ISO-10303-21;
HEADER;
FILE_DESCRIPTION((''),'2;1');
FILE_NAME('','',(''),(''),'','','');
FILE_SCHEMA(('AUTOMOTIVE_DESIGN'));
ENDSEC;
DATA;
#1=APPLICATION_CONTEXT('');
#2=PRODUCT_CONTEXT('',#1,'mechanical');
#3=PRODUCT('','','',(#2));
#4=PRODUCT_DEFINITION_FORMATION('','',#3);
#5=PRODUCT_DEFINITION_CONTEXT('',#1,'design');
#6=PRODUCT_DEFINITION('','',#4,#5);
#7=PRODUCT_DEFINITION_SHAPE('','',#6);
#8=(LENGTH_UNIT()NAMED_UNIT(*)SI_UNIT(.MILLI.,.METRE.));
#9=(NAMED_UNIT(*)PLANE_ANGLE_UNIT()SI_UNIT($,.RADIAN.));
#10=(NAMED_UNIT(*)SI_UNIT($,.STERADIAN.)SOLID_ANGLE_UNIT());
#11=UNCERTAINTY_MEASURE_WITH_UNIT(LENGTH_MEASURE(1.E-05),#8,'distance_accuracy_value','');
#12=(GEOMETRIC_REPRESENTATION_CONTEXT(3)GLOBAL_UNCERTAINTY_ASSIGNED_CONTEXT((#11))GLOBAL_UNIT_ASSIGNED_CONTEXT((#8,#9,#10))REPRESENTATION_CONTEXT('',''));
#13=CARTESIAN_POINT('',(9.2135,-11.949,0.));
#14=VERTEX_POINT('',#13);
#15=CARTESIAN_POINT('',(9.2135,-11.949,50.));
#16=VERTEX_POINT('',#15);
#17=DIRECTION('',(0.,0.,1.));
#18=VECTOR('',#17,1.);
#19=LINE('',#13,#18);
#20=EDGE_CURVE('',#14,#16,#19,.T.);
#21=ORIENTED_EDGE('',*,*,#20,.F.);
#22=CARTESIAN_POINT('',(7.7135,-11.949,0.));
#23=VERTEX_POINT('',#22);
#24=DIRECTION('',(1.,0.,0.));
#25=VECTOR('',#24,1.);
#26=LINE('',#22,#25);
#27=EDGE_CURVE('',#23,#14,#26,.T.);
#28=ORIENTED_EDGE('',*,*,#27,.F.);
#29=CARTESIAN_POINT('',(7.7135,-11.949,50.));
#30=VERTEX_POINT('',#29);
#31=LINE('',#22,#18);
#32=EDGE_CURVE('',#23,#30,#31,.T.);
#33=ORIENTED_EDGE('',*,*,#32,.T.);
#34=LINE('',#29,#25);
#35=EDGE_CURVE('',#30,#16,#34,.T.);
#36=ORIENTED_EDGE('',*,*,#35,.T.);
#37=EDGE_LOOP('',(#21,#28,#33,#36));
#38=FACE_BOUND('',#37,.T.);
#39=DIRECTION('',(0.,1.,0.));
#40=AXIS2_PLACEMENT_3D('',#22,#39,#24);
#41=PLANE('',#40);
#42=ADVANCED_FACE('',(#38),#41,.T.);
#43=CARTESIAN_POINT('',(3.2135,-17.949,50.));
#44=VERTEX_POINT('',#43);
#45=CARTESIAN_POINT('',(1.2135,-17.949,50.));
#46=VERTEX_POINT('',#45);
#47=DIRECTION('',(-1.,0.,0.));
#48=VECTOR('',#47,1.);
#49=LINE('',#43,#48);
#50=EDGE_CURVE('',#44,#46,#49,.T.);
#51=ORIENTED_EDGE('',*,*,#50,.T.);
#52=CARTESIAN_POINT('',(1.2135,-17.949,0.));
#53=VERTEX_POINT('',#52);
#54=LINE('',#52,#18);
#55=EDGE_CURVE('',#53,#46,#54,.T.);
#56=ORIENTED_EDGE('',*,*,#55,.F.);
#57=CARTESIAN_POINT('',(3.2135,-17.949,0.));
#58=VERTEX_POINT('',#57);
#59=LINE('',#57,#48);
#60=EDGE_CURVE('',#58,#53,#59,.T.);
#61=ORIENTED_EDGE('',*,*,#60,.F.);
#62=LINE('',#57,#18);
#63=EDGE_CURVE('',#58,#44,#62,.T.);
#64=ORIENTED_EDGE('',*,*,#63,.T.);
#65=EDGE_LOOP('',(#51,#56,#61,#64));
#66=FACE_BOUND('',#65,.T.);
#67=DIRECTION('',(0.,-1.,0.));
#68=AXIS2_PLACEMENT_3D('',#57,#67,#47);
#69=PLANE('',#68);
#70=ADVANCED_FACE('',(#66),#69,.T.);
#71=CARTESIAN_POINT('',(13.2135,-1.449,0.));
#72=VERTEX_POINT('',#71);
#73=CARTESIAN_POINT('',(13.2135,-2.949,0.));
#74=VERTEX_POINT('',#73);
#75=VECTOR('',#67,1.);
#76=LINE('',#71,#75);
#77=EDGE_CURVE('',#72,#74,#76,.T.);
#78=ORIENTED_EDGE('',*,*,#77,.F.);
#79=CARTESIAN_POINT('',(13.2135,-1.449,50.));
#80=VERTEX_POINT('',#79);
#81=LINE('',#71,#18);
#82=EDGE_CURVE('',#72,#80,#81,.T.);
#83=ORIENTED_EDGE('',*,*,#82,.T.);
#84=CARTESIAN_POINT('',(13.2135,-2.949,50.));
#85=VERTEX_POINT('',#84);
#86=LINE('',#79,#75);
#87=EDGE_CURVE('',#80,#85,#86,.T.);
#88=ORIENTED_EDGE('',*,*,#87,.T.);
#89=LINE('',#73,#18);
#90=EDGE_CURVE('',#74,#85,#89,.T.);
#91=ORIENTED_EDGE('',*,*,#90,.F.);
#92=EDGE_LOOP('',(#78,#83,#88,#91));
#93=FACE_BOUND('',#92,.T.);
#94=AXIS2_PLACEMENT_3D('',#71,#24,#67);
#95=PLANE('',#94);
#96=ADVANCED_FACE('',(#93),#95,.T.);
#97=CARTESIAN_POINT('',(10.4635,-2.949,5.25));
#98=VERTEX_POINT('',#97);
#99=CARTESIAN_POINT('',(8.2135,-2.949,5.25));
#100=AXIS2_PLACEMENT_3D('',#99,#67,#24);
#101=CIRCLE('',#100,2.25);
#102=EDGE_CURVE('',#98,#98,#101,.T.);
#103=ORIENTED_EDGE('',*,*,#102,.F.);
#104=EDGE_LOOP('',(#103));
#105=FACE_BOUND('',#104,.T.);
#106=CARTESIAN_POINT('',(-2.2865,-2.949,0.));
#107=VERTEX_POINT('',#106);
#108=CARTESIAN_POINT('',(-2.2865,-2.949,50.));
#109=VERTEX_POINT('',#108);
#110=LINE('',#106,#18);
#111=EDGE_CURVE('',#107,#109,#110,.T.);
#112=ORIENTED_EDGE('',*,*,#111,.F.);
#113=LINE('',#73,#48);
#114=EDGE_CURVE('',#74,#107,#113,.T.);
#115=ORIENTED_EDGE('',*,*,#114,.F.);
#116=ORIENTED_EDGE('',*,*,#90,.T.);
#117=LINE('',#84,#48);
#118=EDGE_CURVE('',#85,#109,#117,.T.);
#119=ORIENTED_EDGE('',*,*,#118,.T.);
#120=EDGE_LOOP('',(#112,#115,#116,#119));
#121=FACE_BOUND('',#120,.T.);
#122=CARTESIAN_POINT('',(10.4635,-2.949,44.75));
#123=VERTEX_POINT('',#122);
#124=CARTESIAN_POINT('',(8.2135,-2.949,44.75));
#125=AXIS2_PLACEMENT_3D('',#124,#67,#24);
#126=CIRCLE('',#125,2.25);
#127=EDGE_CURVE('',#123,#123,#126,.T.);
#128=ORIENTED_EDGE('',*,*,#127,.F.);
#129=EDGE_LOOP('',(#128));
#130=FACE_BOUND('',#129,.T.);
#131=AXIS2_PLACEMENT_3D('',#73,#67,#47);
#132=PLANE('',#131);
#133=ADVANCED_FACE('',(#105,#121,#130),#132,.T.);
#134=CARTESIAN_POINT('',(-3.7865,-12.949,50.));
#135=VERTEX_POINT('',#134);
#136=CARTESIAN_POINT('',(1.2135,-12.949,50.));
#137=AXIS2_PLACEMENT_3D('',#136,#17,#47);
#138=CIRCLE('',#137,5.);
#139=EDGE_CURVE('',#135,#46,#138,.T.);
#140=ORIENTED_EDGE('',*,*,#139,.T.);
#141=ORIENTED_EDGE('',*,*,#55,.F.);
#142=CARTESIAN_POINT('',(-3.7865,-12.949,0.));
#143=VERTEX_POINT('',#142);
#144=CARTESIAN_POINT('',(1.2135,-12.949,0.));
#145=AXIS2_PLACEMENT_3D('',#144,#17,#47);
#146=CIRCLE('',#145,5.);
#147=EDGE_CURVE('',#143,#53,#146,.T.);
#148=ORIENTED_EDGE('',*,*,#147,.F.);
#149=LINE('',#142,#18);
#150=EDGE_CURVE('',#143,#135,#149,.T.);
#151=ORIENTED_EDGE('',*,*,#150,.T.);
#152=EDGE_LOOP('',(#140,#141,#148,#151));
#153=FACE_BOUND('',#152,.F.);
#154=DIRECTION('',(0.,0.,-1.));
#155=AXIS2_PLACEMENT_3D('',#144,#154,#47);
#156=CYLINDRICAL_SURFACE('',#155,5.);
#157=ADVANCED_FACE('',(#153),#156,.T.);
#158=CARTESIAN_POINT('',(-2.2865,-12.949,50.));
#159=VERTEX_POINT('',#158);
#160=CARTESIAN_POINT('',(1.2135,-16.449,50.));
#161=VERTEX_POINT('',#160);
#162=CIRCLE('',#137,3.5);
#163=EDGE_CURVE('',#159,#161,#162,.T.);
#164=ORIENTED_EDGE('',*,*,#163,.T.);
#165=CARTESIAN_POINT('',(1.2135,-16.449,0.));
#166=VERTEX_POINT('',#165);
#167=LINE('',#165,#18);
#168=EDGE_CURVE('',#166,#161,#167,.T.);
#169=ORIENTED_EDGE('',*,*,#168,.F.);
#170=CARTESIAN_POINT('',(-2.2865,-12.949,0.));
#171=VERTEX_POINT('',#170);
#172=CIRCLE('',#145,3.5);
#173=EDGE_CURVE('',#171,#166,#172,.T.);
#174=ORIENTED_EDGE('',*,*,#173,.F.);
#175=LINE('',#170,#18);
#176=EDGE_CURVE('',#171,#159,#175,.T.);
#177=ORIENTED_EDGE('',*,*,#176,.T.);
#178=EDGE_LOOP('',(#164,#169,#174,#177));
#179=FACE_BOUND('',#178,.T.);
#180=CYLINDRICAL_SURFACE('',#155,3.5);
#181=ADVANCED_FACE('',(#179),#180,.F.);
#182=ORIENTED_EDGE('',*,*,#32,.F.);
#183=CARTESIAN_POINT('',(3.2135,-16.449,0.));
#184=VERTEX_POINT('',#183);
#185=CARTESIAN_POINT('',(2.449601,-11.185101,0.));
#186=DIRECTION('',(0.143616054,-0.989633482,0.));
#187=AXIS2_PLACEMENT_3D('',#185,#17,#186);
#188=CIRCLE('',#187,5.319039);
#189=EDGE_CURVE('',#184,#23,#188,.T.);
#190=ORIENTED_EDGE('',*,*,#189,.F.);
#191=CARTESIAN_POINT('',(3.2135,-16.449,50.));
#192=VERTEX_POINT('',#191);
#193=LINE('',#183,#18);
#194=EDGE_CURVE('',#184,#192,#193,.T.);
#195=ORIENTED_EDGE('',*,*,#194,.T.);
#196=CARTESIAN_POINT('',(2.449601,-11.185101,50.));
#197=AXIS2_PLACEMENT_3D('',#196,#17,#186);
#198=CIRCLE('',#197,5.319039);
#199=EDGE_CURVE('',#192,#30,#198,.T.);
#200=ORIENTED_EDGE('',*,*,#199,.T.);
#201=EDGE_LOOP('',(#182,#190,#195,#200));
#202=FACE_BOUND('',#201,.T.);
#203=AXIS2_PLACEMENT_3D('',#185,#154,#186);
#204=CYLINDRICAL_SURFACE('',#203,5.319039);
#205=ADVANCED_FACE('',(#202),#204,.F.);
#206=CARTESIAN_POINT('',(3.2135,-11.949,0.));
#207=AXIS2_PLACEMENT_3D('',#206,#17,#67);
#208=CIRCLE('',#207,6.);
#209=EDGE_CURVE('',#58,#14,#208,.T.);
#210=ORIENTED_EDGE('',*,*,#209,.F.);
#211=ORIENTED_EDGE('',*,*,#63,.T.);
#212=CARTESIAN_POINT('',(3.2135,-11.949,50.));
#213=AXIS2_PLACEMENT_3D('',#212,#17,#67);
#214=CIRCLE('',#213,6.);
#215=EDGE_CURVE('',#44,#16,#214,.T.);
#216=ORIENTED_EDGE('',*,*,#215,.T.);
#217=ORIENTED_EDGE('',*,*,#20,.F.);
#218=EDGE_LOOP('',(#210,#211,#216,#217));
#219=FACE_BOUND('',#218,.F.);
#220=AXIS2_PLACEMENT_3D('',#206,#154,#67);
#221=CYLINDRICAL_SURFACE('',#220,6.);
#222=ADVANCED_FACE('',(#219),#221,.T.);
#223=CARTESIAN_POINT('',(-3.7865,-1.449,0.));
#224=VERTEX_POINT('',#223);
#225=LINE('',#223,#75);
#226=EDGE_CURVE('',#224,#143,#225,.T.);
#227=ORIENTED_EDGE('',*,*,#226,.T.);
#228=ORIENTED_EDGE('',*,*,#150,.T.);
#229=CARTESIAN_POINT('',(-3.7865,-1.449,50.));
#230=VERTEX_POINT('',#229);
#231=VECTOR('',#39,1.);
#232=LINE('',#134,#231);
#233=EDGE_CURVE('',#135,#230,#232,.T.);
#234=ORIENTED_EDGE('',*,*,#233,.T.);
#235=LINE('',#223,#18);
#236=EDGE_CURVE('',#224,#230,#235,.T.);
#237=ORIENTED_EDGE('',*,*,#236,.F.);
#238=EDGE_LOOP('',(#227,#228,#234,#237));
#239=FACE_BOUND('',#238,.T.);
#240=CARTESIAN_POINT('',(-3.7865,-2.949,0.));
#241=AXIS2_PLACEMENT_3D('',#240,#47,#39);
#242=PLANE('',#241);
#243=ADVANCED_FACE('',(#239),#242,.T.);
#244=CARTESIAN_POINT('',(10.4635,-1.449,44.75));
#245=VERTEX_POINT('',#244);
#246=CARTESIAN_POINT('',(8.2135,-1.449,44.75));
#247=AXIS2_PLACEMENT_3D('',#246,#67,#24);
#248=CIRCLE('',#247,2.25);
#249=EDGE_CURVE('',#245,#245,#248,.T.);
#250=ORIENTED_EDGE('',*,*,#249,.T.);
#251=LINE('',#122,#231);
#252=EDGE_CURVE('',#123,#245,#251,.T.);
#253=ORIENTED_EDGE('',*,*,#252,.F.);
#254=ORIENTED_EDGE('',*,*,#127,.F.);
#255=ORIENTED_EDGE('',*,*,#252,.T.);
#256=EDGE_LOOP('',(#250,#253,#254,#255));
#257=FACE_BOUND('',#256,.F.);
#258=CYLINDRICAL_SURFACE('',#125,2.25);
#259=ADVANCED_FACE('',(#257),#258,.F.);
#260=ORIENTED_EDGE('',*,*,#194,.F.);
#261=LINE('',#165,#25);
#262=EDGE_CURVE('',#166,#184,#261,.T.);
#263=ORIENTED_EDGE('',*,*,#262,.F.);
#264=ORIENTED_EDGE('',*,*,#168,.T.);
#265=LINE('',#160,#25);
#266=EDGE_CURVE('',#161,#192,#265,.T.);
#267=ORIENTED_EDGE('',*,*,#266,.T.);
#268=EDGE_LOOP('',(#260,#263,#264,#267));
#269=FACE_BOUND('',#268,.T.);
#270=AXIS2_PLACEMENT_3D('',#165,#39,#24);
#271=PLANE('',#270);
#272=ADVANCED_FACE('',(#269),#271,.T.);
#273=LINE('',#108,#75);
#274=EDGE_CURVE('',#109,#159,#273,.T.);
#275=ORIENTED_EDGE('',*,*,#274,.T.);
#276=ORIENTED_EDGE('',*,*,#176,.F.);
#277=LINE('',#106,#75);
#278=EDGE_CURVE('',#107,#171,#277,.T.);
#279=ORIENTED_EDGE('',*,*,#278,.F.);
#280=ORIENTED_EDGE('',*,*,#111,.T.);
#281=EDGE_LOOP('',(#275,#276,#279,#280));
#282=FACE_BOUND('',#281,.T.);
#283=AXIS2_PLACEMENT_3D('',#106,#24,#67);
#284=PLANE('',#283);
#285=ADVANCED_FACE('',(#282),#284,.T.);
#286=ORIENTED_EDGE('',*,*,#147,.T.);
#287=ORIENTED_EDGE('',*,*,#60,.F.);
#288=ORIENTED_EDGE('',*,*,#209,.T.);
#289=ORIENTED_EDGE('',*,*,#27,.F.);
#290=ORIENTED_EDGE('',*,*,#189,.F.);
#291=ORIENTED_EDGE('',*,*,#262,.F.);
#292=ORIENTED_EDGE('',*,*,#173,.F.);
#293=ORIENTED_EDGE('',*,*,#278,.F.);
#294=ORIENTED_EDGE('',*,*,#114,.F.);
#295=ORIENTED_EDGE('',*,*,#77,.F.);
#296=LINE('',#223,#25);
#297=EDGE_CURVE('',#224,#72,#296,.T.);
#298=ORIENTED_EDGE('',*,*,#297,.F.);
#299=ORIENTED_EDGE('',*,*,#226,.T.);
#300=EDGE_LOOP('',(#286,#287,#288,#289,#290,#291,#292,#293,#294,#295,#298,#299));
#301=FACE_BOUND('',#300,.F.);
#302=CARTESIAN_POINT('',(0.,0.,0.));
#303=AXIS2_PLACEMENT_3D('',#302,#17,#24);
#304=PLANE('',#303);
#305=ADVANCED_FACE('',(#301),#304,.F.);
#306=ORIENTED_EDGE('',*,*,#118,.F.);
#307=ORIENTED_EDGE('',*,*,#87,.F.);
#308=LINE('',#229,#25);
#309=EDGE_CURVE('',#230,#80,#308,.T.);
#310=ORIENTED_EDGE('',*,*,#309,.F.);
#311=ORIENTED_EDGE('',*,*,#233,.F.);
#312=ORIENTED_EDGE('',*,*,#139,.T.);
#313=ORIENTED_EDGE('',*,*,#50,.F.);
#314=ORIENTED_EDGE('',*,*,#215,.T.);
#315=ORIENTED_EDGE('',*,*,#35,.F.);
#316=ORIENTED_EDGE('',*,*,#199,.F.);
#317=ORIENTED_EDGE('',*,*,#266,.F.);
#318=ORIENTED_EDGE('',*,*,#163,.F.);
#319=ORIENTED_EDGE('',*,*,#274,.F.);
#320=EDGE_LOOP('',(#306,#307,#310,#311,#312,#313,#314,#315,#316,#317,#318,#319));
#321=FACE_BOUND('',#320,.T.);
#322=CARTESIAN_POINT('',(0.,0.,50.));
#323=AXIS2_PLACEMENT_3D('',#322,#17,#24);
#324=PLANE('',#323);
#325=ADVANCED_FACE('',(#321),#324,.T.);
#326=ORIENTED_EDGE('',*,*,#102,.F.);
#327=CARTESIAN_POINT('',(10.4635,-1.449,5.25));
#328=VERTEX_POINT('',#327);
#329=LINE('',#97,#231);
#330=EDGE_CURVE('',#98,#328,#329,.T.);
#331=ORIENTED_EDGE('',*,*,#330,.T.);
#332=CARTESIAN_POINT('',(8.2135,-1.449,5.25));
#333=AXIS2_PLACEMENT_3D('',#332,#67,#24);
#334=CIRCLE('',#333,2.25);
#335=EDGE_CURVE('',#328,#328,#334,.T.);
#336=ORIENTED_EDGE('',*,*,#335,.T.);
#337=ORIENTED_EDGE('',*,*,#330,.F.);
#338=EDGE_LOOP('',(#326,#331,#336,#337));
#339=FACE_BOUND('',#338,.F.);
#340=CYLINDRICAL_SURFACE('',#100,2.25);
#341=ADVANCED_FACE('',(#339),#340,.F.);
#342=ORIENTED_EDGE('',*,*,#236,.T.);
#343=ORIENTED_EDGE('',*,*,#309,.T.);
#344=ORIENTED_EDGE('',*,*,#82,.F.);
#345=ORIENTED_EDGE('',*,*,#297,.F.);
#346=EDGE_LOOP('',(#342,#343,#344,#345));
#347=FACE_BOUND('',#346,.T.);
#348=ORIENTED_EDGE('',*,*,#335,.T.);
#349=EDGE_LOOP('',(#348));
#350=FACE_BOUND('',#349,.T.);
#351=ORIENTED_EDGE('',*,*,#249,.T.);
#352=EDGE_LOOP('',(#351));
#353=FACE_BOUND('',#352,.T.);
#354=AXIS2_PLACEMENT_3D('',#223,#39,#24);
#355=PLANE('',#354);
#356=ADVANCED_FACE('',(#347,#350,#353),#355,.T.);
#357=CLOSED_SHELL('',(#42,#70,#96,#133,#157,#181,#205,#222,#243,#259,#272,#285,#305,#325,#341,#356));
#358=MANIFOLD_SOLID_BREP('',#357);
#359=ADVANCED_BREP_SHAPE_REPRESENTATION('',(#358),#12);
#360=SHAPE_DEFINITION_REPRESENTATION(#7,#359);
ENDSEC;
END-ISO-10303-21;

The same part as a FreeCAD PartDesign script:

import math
import FreeCAD as App
import Part
import Sketcher

V = App.Vector

doc = App.newDocument("Part")
params = doc.addObject("Spreadsheet::Sheet", "Params")
for row, (alias, value) in enumerate([
    ("sketch1_radius", "5 mm"),
    ("sketch1_radius2", "6 mm"),
    ("sketch1_width", "2 mm"),
    ("sketch1_height", "10 mm"),
    ("sketch1_width2", "1.5 mm"),
    ("pad1_length", "50 mm"),
    ("sketch2_diameter", "4.5 mm"),
    ("pocket1_length", "3 mm"),
], start=1):
    params.set(f"A{row}", alias)
    params.set(f"B{row}", "=" + value)
    params.setAlias(f"B{row}", alias)

body = doc.addObject("PartDesign::Body", "Body")

# Sketch on XY plane
sketch1 = body.newObject("Sketcher::SketchObject", "Sketch")
sketch1.AttachmentSupport = (doc.getObject("XY_Plane"), [""])
sketch1.MapMode = "FlatFace"
sketch1.addGeometry([
    Part.LineSegment(V(13.2135, -1.449, 0), V(-3.7865, -1.449, 0)),  # 0
    Part.LineSegment(V(-3.7865, -1.449, 0), V(-3.7865, -12.949, 0)),  # 1
    Part.ArcOfCircle(Part.Circle(V(1.2135, -12.949, 0), V(0, 0, 1), 5), math.radians(180), math.radians(270)),  # 2
    Part.LineSegment(V(1.2135, -17.949, 0), V(3.2135, -17.949, 0)),  # 3
    Part.ArcOfCircle(Part.Circle(V(3.2135, -11.949, 0), V(0, 0, 1), 6), math.radians(-90), math.radians(0)),  # 4
    Part.LineSegment(V(9.2135, -11.949, 0), V(7.7135, -11.949, 0)),  # 5
    Part.ArcOfCircle(Part.Circle(V(2.4495, -11.1849, 0), V(0, 0, 1), 5.319252), math.radians(-81.742092), math.radians(-8.259129)),  # 6
    Part.LineSegment(V(3.2135, -16.449, 0), V(1.2135, -16.449, 0)),  # 7
    Part.ArcOfCircle(Part.Circle(V(1.2135, -12.949, 0), V(0, 0, 1), 3.5), math.radians(180), math.radians(270)),  # 8
    Part.LineSegment(V(-2.2865, -12.949, 0), V(-2.2865, -2.949, 0)),  # 9
    Part.LineSegment(V(-2.2865, -2.949, 0), V(13.2135, -2.949, 0)),  # 10
    Part.LineSegment(V(13.2135, -2.949, 0), V(13.2135, -1.449, 0)),  # 11
], False)
sketch1.addConstraint([
    Sketcher.Constraint("Coincident", 0, 2, 1, 1),
    Sketcher.Constraint("Tangent", 1, 2, 2, 1),
    Sketcher.Constraint("Tangent", 2, 2, 3, 1),
    Sketcher.Constraint("Tangent", 3, 2, 4, 1),
    Sketcher.Constraint("Coincident", 4, 2, 5, 1),
    Sketcher.Constraint("Coincident", 5, 2, 6, 2),
    Sketcher.Constraint("Coincident", 6, 1, 7, 1),
    Sketcher.Constraint("Tangent", 7, 2, 8, 2),
    Sketcher.Constraint("Tangent", 8, 1, 9, 1),
    Sketcher.Constraint("Coincident", 9, 2, 10, 1),
    Sketcher.Constraint("Coincident", 10, 2, 11, 1),
    Sketcher.Constraint("Coincident", 11, 2, 0, 1),
    Sketcher.Constraint("Horizontal", 0),
    Sketcher.Constraint("Vertical", 1),
    Sketcher.Constraint("Horizontal", 3),
    Sketcher.Constraint("Horizontal", 5),
    Sketcher.Constraint("Horizontal", 7),
    Sketcher.Constraint("Vertical", 9),
    Sketcher.Constraint("Horizontal", 10),
    Sketcher.Constraint("Vertical", 11),
    Sketcher.Constraint("Coincident", 8, 3, 2, 3),
    Sketcher.Constraint("Vertical", 3, 2, 6, 1),
    Sketcher.Constraint("Equal", 5, 11),
    Sketcher.Constraint("Radius", 2, 5.0),
    Sketcher.Constraint("Radius", 4, 6.0),
    Sketcher.Constraint("DistanceX", 3, 1, 3, 2, 2.0),
    Sketcher.Constraint("DistanceY", 9, 1, 9, 2, 10.0),
    Sketcher.Constraint("DistanceX", 5, 2, 5, 1, 1.5),
    Sketcher.Constraint("DistanceX", 10, 1, 10, 2, 15.5),
    Sketcher.Constraint("DistanceY", 3, 2, 4, 2, 6.0),
    Sketcher.Constraint("DistanceX", 4, 3, 10, 2, 10.0),
    Sketcher.Constraint("Radius", 6, 5.3193),
    Sketcher.Constraint("DistanceY", 2, 3, -1, 1, 12.949),
    Sketcher.Constraint("DistanceX", -1, 1, 2, 3, 1.2135),
])
sketch1.setExpression("Constraints[23]", "Params.sketch1_radius")
sketch1.setExpression("Constraints[24]", "Params.sketch1_radius2")
sketch1.setExpression("Constraints[25]", "Params.sketch1_width")
sketch1.setExpression("Constraints[26]", "Params.sketch1_height")
sketch1.setExpression("Constraints[27]", "Params.sketch1_width2")
pad1 = body.newObject("PartDesign::Pad", "Pad")
pad1.Profile = sketch1
pad1.setExpression("Length", "Params.pad1_length")

# Sketch on XZ plane
sketch2 = body.newObject("Sketcher::SketchObject", "Sketch001")
sketch2.AttachmentSupport = (doc.getObject("XZ_Plane"), [""])
sketch2.MapMode = "FlatFace"
sketch2.AttachmentOffset = App.Placement(V(0, 0, 2.949), App.Rotation())
sketch2.addGeometry([
    Part.Circle(V(8.2135, 44.75, 0), V(0, 0, 1), 2.25),
    Part.Circle(V(8.2135, 5.25, 0), V(0, 0, 1), 2.25),
], False)
sketch2.addConstraint([
    Sketcher.Constraint("Equal", 0, 1),
    Sketcher.Constraint("Vertical", 0, 3, 1, 3),
    Sketcher.Constraint("Diameter", 0, 4.5),
    Sketcher.Constraint("DistanceY", 1, 3, 0, 3, 39.5),
    Sketcher.Constraint("DistanceY", -1, 1, 0, 3, 44.75),
    Sketcher.Constraint("DistanceX", -1, 1, 0, 3, 8.2135),
])
sketch2.setExpression("Constraints[2]", "Params.sketch2_diameter")
pocket1 = body.newObject("PartDesign::Pocket", "Pocket")
pocket1.Profile = sketch2
pocket1.setExpression("Length", "Params.pocket1_length")

doc.recompute()
